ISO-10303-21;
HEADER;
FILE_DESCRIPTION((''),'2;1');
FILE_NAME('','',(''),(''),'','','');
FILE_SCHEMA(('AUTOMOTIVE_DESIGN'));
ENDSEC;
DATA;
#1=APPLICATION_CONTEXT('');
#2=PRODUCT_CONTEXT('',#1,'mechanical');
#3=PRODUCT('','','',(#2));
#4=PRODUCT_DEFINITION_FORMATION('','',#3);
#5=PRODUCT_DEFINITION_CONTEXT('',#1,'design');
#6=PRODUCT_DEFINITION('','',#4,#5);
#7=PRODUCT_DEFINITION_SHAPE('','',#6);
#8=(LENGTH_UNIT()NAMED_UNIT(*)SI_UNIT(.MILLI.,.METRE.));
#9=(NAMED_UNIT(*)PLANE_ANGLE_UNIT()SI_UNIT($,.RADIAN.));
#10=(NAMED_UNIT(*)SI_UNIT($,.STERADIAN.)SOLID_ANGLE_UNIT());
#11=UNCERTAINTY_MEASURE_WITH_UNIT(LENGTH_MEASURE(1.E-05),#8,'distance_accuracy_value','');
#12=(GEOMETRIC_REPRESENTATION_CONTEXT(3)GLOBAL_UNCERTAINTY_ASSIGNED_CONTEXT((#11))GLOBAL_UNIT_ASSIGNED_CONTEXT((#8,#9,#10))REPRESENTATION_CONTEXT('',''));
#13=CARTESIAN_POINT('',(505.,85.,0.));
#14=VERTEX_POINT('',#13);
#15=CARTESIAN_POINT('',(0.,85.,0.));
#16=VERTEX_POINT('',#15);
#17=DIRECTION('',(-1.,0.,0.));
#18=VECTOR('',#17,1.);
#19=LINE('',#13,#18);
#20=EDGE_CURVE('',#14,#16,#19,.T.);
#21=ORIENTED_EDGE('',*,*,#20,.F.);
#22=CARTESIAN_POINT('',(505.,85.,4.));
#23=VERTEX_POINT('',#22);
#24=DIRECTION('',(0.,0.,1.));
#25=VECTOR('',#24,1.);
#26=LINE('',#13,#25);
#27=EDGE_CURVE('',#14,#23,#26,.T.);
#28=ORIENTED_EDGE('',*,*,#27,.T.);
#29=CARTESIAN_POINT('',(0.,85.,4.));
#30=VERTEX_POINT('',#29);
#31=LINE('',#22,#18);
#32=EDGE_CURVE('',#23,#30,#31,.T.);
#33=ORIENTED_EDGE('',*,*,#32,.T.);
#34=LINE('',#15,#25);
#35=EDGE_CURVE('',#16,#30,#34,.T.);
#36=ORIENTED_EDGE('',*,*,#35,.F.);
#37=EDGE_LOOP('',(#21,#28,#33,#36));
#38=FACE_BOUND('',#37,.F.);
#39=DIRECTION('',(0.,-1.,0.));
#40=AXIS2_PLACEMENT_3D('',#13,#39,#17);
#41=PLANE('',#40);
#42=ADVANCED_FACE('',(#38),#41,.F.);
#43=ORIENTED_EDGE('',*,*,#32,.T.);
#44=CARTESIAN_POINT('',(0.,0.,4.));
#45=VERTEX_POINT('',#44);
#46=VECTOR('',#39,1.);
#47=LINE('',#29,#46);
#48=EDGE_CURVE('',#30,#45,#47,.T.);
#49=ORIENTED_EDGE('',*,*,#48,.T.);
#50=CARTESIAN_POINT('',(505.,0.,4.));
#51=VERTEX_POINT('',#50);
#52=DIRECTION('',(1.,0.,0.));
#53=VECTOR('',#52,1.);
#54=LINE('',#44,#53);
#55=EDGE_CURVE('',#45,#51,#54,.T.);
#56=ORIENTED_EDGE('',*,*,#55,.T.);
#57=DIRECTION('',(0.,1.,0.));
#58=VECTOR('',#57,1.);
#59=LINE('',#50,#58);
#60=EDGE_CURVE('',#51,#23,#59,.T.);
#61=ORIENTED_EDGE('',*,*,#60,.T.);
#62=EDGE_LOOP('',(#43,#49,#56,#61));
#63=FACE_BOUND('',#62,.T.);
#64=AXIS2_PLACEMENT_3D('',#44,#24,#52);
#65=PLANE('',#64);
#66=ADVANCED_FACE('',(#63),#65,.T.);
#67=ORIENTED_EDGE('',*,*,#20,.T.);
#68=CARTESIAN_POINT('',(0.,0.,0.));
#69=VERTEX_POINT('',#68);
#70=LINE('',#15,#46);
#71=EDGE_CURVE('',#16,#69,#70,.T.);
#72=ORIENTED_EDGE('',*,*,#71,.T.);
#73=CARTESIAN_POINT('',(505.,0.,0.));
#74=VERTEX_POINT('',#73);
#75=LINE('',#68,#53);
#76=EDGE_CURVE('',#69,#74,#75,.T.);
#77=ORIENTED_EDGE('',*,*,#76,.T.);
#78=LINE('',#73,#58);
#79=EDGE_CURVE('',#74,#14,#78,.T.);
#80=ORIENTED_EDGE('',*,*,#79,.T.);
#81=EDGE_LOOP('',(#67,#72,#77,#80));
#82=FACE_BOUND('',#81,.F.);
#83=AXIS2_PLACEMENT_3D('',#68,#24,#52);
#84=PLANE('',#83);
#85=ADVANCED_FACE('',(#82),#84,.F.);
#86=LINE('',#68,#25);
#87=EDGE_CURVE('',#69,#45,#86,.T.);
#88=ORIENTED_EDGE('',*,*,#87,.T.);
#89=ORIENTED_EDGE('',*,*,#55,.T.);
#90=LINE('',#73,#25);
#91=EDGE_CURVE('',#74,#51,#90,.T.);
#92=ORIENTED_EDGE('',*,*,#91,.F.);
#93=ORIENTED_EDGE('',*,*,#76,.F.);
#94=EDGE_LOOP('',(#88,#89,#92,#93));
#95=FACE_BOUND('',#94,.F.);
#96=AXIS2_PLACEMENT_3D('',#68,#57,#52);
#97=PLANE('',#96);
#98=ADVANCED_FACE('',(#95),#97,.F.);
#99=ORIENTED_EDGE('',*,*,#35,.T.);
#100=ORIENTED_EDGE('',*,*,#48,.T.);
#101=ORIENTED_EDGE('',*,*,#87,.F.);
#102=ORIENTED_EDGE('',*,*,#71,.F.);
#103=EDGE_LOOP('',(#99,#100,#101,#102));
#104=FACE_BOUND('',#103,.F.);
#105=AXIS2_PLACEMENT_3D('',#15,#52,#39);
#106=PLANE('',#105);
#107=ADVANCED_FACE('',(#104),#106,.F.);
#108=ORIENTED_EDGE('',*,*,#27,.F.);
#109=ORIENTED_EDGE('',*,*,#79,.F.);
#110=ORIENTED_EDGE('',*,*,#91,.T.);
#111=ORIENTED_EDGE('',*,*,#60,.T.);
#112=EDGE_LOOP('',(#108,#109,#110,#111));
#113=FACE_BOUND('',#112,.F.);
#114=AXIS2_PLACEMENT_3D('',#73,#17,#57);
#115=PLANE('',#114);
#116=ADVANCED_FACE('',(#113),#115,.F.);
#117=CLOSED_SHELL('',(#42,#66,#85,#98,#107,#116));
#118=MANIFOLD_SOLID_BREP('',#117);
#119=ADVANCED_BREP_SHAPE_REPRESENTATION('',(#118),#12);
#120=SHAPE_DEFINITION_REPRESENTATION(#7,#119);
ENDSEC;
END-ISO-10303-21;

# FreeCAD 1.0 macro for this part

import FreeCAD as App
import Part
import Sketcher
Q = App.Units.Quantity


def add_polygon(sketch, points):
    """Adds a closed chain of lines whose ends are joined by coincident constraints."""
    first, n = sketch.GeometryCount, len(points)
    for a, b in zip(points, points[1:] + points[:1]):
        sketch.addGeometry(Part.LineSegment(App.Vector(*a, 0), App.Vector(*b, 0)), False)
    for i in range(n):
        sketch.addConstraint(Sketcher.Constraint("Coincident", first + i, 2, first + (i + 1) % n, 1))

doc = App.newDocument("Part")
body = doc.addObject("PartDesign::Body", "Body")

# Sketch on XY plane
sketch1 = doc.addObject("Sketcher::SketchObject", "Sketch")
body.addObject(sketch1)
sketch1.AttachmentSupport = (doc.XY_Plane, [""])
sketch1.MapMode = "FlatFace"
add_polygon(sketch1, [(0, 85), (0, 0), (505, 0), (505, 85)])  # lines 0-3
sketch1.addConstraint(Sketcher.Constraint("Vertical", 0))
sketch1.addConstraint(Sketcher.Constraint("Horizontal", 1))
sketch1.addConstraint(Sketcher.Constraint("Vertical", 2))
sketch1.addConstraint(Sketcher.Constraint("Horizontal", 3))
sketch1.addConstraint(Sketcher.Constraint("Coincident", 0, 2, -1, 1))
sketch1.addConstraint(Sketcher.Constraint("DistanceX", 1, 1, 1, 2, Q("505 mm")))
sketch1.addConstraint(Sketcher.Constraint("DistanceY", 0, 2, 0, 1, Q("85 mm")))
pad1 = doc.addObject("PartDesign::Pad", "Pad")
body.addObject(pad1)
pad1.Profile = sketch1
pad1.Length = 4

doc.recompute()
